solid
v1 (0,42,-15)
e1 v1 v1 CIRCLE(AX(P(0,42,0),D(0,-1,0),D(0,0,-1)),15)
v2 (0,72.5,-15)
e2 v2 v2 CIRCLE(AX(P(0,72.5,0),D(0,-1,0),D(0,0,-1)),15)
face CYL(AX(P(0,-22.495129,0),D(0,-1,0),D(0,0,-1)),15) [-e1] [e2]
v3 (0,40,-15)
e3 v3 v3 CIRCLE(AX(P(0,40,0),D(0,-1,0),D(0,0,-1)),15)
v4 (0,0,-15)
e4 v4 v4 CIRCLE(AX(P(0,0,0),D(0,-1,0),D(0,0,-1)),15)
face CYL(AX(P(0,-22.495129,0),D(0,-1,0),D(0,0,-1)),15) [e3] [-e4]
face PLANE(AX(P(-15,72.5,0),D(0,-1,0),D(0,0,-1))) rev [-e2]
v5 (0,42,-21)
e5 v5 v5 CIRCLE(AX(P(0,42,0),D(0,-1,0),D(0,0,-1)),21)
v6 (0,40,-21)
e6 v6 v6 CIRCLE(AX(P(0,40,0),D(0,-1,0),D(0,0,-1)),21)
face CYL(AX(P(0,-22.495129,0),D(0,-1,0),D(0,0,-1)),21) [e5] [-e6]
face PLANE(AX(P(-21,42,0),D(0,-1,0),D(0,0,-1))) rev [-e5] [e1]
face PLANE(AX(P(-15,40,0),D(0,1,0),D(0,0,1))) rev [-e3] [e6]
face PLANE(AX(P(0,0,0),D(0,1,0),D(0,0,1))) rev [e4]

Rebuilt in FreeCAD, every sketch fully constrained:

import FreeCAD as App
import Part
import Sketcher
from FreeCAD import Vector


def add_polygon(sketch, points):
    """Adds a closed chain of lines whose ends are joined by coincident constraints."""
    first, n = sketch.GeometryCount, len(points)
    for a, b in zip(points, points[1:] + points[:1]):
        sketch.addGeometry(Part.LineSegment(App.Vector(*a, 0), App.Vector(*b, 0)), False)
    for i in range(n):
        sketch.addConstraint(Sketcher.Constraint("Coincident", first + i, 2, first + (i + 1) % n, 1))

doc = App.newDocument("Part")
body = doc.addObject("PartDesign::Body", "Body")

sketch1 = body.newObject("Sketcher::SketchObject", "Sketch")
sketch1.AttachmentSupport = (doc.getObject("XY_Plane"), [""])
sketch1.MapMode = "FlatFace"
add_polygon(sketch1, [(-15, 0), (0, 0), (0, 72.5), (-15, 72.5), (-15, 42), (-21, 42), (-21, 40), (-15, 40)])
sketch1.addConstraint([
    Sketcher.Constraint("Horizontal", 0),
    Sketcher.Constraint("Vertical", 1),
    Sketcher.Constraint("Horizontal", 2),
    Sketcher.Constraint("Vertical", 3),
    Sketcher.Constraint("Horizontal", 4),
    Sketcher.Constraint("Vertical", 5),
    Sketcher.Constraint("Horizontal", 6),
    Sketcher.Constraint("Vertical", 7),
    Sketcher.Constraint("Coincident", 0, 2, -1, 1),
    Sketcher.Constraint("Vertical", 3, 2, 6, 2),
    Sketcher.Constraint("DistanceX", 0, 1, 0, 2, 15.0),
    Sketcher.Constraint("DistanceX", 4, 2, 4, 1, 6.0),
    Sketcher.Constraint("DistanceY", 5, 2, 5, 1, 2.0),
    Sketcher.Constraint("DistanceY", 7, 2, 7, 1, 40.0),
    Sketcher.Constraint("DistanceY", 1, 1, 1, 2, 72.5),
])
revolution = body.newObject("PartDesign::Revolution", "Revolution")
revolution.Profile = sketch1
revolution.ReferenceAxis = (sketch1, ["V_Axis"])
revolution.Angle = 360

doc.recompute()
